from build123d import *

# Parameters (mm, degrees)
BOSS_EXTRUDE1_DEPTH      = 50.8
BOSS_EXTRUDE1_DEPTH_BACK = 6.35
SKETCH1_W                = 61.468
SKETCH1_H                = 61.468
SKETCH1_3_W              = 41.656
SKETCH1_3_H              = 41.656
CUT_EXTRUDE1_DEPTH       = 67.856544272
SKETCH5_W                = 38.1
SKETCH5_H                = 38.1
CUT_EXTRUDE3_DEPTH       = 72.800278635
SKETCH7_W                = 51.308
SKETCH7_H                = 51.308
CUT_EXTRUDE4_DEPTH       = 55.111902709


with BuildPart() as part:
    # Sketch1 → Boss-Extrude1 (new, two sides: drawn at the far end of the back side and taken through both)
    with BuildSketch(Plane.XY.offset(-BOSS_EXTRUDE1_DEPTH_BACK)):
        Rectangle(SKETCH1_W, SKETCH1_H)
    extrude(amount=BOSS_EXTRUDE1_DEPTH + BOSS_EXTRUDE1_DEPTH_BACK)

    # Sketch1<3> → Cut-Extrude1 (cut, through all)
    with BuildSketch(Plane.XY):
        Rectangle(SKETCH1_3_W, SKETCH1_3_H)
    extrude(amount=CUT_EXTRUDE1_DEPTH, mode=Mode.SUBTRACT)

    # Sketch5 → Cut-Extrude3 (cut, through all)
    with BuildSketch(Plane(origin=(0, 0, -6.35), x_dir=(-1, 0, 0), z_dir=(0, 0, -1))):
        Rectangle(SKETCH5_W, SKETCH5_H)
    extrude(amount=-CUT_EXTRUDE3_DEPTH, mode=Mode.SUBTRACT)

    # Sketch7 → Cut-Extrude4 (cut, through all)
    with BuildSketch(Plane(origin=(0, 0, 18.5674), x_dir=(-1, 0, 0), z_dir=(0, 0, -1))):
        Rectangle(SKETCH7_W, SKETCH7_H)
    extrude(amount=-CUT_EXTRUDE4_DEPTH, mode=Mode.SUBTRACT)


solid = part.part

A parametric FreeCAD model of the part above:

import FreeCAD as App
import Part
import Sketcher
Q = App.Units.Quantity

doc = App.newDocument("Part")
params = doc.addObject("Spreadsheet::Sheet", "Params")
for row, (alias, value) in enumerate([
    ("sketch1_width", "2.42 in"),
    ("pad1_length", "2 in"),
    ("pad1_length2", "0.25 in"),
    ("sketch2_width", "1.64 in"),
    ("sketch3_width", "1.5 in"),
    ("sketch4_width", "2.02 in"),
], start=1):
    params.set(f"A{row}", alias)
    params.set(f"B{row}", "=" + value)
    params.setAlias(f"B{row}", alias)

body = doc.addObject("PartDesign::Body", "Body")

# Sketch on XY plane
sketch1 = doc.addObject("Sketcher::SketchObject", "Sketch")
body.addObject(sketch1)
sketch1.AttachmentSupport = (doc.XY_Plane, [""])
sketch1.MapMode = "FlatFace"
sketch1.addGeometry([
    Part.LineSegment(App.Vector(-31, 31, 0), App.Vector(-31, -31, 0)),
    Part.LineSegment(App.Vector(-31, -31, 0), App.Vector(31, -31, 0)),
    Part.LineSegment(App.Vector(31, -31, 0), App.Vector(31, 31, 0)),
    Part.LineSegment(App.Vector(31, 31, 0), App.Vector(-31, 31, 0)),
], False)
sketch1.addConstraint([
    Sketcher.Constraint("Coincident", 0, 2, 1, 1),
    Sketcher.Constraint("Coincident", 1, 2, 2, 1),
    Sketcher.Constraint("Coincident", 2, 2, 3, 1),
    Sketcher.Constraint("Coincident", 3, 2, 0, 1),
    Sketcher.Constraint("Vertical", 0),
    Sketcher.Constraint("Horizontal", 1),
    Sketcher.Constraint("Vertical", 2),
    Sketcher.Constraint("Horizontal", 3),
    Sketcher.Constraint("Symmetric", 0, 2, 2, 2, -1, 1),
    Sketcher.Constraint("Equal", 3, 0),
    Sketcher.Constraint("DistanceX", 1, 1, 1, 2, Q("2.42 in")),
])
sketch1.setExpression("Constraints[10]", "Params.sketch1_width")
pad1 = doc.addObject("PartDesign::Pad", "Pad")
body.addObject(pad1)
pad1.Profile = sketch1
pad1.Type = "TwoLengths"
pad1.setExpression("Length", "Params.pad1_length")
pad1.setExpression("Length2", "Params.pad1_length2")

# Sketch on XY plane
sketch2 = doc.addObject("Sketcher::SketchObject", "Sketch001")
body.addObject(sketch2)
sketch2.AttachmentSupport = (doc.XY_Plane, [""])
sketch2.MapMode = "FlatFace"
sketch2.addGeometry([
    Part.LineSegment(App.Vector(-21, 21, 0), App.Vector(-21, -21, 0)),
    Part.LineSegment(App.Vector(-21, -21, 0), App.Vector(21, -21, 0)),
    Part.LineSegment(App.Vector(21, -21, 0), App.Vector(21, 21, 0)),
    Part.LineSegment(App.Vector(21, 21, 0), App.Vector(-21, 21, 0)),
], False)
sketch2.addConstraint([
    Sketcher.Constraint("Coincident", 0, 2, 1, 1),
    Sketcher.Constraint("Coincident", 1, 2, 2, 1),
    Sketcher.Constraint("Coincident", 2, 2, 3, 1),
    Sketcher.Constraint("Coincident", 3, 2, 0, 1),
    Sketcher.Constraint("Vertical", 0),
    Sketcher.Constraint("Horizontal", 1),
    Sketcher.Constraint("Vertical", 2),
    Sketcher.Constraint("Horizontal", 3),
    Sketcher.Constraint("Symmetric", 0, 2, 2, 2, -1, 1),
    Sketcher.Constraint("Equal", 3, 0),
    Sketcher.Constraint("DistanceX", 1, 1, 1, 2, Q("1.64 in")),
])
sketch2.setExpression("Constraints[10]", "Params.sketch2_width")
pocket1 = doc.addObject("PartDesign::Pocket", "Pocket")
body.addObject(pocket1)
pocket1.Profile = sketch2
pocket1.Type = "ThroughAll"
pocket1.Reversed = True

# Sketch on XY plane
sketch3 = doc.addObject("Sketcher::SketchObject", "Sketch002")
body.addObject(sketch3)
sketch3.AttachmentSupport = (doc.XY_Plane, [""])
sketch3.MapMode = "FlatFace"
sketch3.AttachmentOffset = App.Placement(App.Vector(0, 0, -0.25 * 25.4), App.Rotation())
sketch3.addGeometry([
    Part.LineSegment(App.Vector(19, 19, 0), App.Vector(19, -19, 0)),
    Part.LineSegment(App.Vector(19, -19, 0), App.Vector(-19, -19, 0)),
    Part.LineSegment(App.Vector(-19, -19, 0), App.Vector(-19, 19, 0)),
    Part.LineSegment(App.Vector(-19, 19, 0), App.Vector(19, 19, 0)),
], False)
sketch3.addConstraint([
    Sketcher.Constraint("Coincident", 0, 2, 1, 1),
    Sketcher.Constraint("Coincident", 1, 2, 2, 1),
    Sketcher.Constraint("Coincident", 2, 2, 3, 1),
    Sketcher.Constraint("Coincident", 3, 2, 0, 1),
    Sketcher.Constraint("Vertical", 0),
    Sketcher.Constraint("Horizontal", 1),
    Sketcher.Constraint("Vertical", 2),
    Sketcher.Constraint("Horizontal", 3),
    Sketcher.Constraint("Symmetric", 0, 2, 2, 2, -1, 1),
    Sketcher.Constraint("Equal", 3, 0),
    Sketcher.Constraint("DistanceX", 1, 2, 1, 1, Q("1.5 in")),
])
sketch3.setExpression("Constraints[10]", "Params.sketch3_width")
pocket2 = doc.addObject("PartDesign::Pocket", "Pocket001")
body.addObject(pocket2)
pocket2.Profile = sketch3
pocket2.Type = "ThroughAll"
pocket2.Reversed = True

# Sketch on XY plane
sketch4 = doc.addObject("Sketcher::SketchObject", "Sketch003")
body.addObject(sketch4)
sketch4.AttachmentSupport = (doc.XY_Plane, [""])
sketch4.MapMode = "FlatFace"
sketch4.AttachmentOffset = App.Placement(App.Vector(0, 0, 0.731 * 25.4), App.Rotation())
sketch4.addGeometry([
    Part.LineSegment(App.Vector(26, 26, 0), App.Vector(26, -26, 0)),
    Part.LineSegment(App.Vector(26, -26, 0), App.Vector(-26, -26, 0)),
    Part.LineSegment(App.Vector(-26, -26, 0), App.Vector(-26, 26, 0)),
    Part.LineSegment(App.Vector(-26, 26, 0), App.Vector(26, 26, 0)),
], False)
sketch4.addConstraint([
    Sketcher.Constraint("Coincident", 0, 2, 1, 1),
    Sketcher.Constraint("Coincident", 1, 2, 2, 1),
    Sketcher.Constraint("Coincident", 2, 2, 3, 1),
    Sketcher.Constraint("Coincident", 3, 2, 0, 1),
    Sketcher.Constraint("Vertical", 0),
    Sketcher.Constraint("Horizontal", 1),
    Sketcher.Constraint("Vertical", 2),
    Sketcher.Constraint("Horizontal", 3),
    Sketcher.Constraint("Symmetric", 0, 2, 2, 2, -1, 1),
    Sketcher.Constraint("Equal", 3, 0),
    Sketcher.Constraint("DistanceX", 1, 2, 1, 1, Q("2.02 in")),
])
sketch4.setExpression("Constraints[10]", "Params.sketch4_width")
pocket3 = doc.addObject("PartDesign::Pocket", "Pocket002")
body.addObject(pocket3)
pocket3.Profile = sketch4
pocket3.Type = "ThroughAll"
pocket3.Reversed = True

doc.recompute()
